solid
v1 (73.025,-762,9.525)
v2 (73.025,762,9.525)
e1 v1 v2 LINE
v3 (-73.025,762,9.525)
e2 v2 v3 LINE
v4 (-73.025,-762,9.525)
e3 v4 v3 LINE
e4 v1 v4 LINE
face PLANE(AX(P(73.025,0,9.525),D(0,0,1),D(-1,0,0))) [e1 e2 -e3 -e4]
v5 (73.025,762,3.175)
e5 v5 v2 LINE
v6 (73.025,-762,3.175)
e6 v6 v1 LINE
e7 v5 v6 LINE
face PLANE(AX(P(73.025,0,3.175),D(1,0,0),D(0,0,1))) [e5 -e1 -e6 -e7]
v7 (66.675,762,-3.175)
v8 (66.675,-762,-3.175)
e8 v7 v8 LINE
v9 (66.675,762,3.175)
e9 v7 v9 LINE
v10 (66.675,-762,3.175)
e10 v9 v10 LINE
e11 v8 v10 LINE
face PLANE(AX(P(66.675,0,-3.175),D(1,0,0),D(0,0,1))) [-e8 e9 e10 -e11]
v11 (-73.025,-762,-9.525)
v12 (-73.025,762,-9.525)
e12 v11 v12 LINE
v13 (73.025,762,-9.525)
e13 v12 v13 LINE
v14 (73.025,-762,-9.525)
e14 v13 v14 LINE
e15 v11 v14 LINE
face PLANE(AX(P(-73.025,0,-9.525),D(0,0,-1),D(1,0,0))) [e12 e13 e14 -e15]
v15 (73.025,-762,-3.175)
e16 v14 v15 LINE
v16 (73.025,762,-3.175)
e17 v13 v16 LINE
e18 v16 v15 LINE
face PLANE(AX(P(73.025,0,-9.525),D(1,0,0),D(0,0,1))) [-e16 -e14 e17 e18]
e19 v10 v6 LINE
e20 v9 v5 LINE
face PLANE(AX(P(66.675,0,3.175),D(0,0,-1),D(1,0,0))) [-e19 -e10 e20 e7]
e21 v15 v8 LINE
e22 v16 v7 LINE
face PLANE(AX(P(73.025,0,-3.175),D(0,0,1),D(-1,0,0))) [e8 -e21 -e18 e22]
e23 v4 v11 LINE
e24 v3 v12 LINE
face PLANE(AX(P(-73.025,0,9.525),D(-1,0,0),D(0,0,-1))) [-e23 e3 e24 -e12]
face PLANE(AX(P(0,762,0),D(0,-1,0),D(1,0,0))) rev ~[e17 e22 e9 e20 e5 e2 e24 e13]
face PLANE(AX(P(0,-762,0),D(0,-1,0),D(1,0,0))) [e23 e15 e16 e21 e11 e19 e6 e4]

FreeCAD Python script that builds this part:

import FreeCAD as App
import Part
import Sketcher

V = App.Vector
Q = App.Units.Quantity

doc = App.newDocument("Part")
body = doc.addObject("PartDesign::Body", "Body")

sketch1 = doc.addObject("Sketcher::SketchObject", "Sketch")
body.addObject(sketch1)
sketch1.AttachmentSupport = (doc.XZ_Plane, [""])
sketch1.MapMode = "FlatFace"
sketch1.addGeometry(Part.LineSegment(V(-73.025, -9.525, 0), V(73.025, -9.525, 0)), False)
sketch1.addGeometry(Part.LineSegment(V(73.025, -9.525, 0), V(73.025, -3.175, 0)), False)
sketch1.addGeometry(Part.LineSegment(V(73.025, -3.175, 0), V(66.675, -3.175, 0)), False)
sketch1.addGeometry(Part.LineSegment(V(66.675, -3.175, 0), V(66.675, 3.175, 0)), False)
sketch1.addGeometry(Part.LineSegment(V(66.675, 3.175, 0), V(73.025, 3.175, 0)), False)
sketch1.addGeometry(Part.LineSegment(V(73.025, 3.175, 0), V(73.025, 9.525, 0)), False)
sketch1.addGeometry(Part.LineSegment(V(73.025, 9.525, 0), V(-73.025, 9.525, 0)), False)
sketch1.addGeometry(Part.LineSegment(V(-73.025, 9.525, 0), V(-73.025, -9.525, 0)), False)
sketch1.addConstraint(Sketcher.Constraint("Coincident", 0, 2, 1, 1))
sketch1.addConstraint(Sketcher.Constraint("Coincident", 1, 2, 2, 1))
sketch1.addConstraint(Sketcher.Constraint("Coincident", 2, 2, 3, 1))
sketch1.addConstraint(Sketcher.Constraint("Coincident", 3, 2, 4, 1))
sketch1.addConstraint(Sketcher.Constraint("Coincident", 4, 2, 5, 1))
sketch1.addConstraint(Sketcher.Constraint("Coincident", 5, 2, 6, 1))
sketch1.addConstraint(Sketcher.Constraint("Coincident", 6, 2, 7, 1))
sketch1.addConstraint(Sketcher.Constraint("Coincident", 7, 2, 0, 1))
sketch1.addConstraint(Sketcher.Constraint("Horizontal", 0))
sketch1.addConstraint(Sketcher.Constraint("Vertical", 1))
sketch1.addConstraint(Sketcher.Constraint("Horizontal", 2))
sketch1.addConstraint(Sketcher.Constraint("Vertical", 3))
sketch1.addConstraint(Sketcher.Constraint("Horizontal", 4))
sketch1.addConstraint(Sketcher.Constraint("Vertical", 5))
sketch1.addConstraint(Sketcher.Constraint("Horizontal", 6))
sketch1.addConstraint(Sketcher.Constraint("Vertical", 7))
sketch1.addConstraint(Sketcher.Constraint("Symmetric", 0, 2, 6, 2, -1, 1))
sketch1.addConstraint(Sketcher.Constraint("Symmetric", 1, 2, 4, 2, -1))
sketch1.addConstraint(Sketcher.Constraint("Equal", 4, 1))
sketch1.addConstraint(Sketcher.Constraint("Equal", 1, 3))
sketch1.addConstraint(Sketcher.Constraint("DistanceX", 0, 1, 0, 2, Q("5.75 in")))
sketch1.addConstraint(Sketcher.Constraint("DistanceX", 2, 2, 2, 1, Q("0.25 in")))
pad1 = doc.addObject("PartDesign::Pad", "Pad")
body.addObject(pad1)
pad1.Profile = sketch1
pad1.Length = Q("60 in")
pad1.Midplane = True

doc.recompute()
